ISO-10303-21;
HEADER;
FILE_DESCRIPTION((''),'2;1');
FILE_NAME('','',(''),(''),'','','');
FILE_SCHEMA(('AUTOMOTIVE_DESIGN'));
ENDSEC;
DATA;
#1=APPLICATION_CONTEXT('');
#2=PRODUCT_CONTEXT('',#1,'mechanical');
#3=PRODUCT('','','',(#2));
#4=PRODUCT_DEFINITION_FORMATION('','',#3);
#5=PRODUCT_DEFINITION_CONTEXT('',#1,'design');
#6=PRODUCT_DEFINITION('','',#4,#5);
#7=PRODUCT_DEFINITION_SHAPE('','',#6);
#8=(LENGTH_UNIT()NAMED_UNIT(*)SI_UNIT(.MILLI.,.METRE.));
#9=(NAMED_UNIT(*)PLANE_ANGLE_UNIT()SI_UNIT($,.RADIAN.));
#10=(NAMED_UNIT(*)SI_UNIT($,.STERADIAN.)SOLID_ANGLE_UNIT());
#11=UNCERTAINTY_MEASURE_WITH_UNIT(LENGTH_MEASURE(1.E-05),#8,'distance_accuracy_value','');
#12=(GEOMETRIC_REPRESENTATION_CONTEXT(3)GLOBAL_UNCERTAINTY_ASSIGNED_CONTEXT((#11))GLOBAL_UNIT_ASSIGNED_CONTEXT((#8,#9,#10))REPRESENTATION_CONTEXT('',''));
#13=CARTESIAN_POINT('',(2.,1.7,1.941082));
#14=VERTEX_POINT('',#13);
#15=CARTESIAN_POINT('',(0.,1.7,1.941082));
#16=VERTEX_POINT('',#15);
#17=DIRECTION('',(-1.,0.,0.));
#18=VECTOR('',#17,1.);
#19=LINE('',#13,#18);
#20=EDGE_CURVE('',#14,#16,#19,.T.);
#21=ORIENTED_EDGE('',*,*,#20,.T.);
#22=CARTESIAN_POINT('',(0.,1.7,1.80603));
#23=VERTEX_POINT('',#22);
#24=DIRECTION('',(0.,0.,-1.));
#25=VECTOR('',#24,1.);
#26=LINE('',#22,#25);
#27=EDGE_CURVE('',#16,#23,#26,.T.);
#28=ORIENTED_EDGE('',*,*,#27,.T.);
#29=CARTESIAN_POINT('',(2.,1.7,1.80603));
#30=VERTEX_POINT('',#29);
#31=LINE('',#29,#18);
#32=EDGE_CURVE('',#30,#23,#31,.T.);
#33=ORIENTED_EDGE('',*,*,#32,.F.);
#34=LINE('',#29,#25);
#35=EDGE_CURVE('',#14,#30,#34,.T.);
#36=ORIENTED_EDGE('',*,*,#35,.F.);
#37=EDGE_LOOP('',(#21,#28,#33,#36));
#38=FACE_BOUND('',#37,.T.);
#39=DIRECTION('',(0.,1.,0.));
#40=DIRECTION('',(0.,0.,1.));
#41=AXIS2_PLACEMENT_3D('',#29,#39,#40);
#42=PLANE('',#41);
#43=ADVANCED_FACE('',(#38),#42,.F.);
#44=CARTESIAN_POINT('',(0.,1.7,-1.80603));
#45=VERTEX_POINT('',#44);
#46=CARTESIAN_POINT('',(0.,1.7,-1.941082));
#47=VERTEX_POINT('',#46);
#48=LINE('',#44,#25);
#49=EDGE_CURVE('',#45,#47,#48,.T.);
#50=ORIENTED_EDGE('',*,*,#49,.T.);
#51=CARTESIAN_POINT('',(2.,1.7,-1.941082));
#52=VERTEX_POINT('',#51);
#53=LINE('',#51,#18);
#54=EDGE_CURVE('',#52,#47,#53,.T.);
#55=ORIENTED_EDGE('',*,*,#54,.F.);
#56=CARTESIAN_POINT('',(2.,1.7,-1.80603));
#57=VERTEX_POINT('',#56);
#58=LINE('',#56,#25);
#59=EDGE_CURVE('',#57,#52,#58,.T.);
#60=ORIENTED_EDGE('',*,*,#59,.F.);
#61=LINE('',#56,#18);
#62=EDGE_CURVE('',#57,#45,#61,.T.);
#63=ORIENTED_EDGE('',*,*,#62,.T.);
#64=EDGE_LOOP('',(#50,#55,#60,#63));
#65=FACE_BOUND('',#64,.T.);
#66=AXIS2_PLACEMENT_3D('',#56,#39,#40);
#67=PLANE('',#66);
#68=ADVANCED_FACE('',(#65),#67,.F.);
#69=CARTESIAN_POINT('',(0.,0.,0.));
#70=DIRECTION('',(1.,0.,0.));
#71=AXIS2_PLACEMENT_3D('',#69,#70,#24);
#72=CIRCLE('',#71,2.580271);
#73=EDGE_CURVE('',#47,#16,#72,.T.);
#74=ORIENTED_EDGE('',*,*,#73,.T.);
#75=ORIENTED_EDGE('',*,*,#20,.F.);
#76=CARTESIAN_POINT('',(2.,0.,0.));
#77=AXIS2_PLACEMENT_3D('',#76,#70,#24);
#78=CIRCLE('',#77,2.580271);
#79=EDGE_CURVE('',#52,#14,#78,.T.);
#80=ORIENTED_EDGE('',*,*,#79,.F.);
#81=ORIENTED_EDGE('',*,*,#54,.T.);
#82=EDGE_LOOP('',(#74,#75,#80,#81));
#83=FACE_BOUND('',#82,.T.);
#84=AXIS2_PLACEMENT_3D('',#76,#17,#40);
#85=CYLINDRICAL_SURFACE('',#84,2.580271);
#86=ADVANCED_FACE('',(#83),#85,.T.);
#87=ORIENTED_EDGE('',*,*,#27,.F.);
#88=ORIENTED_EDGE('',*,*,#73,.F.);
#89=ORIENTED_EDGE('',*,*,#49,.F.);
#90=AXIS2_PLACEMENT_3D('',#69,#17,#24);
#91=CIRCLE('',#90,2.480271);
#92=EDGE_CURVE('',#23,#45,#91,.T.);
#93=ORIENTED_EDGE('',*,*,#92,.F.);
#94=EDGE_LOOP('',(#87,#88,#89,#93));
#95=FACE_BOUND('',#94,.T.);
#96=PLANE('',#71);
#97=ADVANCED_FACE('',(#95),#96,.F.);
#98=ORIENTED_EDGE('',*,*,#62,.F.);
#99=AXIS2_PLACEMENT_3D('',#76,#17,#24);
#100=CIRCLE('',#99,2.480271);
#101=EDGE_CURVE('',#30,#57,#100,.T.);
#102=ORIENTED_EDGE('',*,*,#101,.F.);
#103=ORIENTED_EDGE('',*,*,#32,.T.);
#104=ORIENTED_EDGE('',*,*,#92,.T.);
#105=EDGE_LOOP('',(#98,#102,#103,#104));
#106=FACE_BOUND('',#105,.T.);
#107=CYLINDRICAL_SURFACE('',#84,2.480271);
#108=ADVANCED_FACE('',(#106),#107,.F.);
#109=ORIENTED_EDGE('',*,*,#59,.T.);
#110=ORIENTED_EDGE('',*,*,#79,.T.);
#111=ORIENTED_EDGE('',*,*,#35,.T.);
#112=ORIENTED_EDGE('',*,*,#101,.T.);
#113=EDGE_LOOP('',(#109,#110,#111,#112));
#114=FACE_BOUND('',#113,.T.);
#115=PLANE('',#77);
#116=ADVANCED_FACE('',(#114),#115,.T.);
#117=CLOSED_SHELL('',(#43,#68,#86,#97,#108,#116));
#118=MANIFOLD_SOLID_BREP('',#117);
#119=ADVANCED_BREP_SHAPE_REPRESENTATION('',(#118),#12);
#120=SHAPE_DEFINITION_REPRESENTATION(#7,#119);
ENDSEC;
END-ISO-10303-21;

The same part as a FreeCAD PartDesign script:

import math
import FreeCAD as App
import Part
import Sketcher

doc = App.newDocument("Part")
body = doc.addObject("PartDesign::Body", "Body")

sketch1 = doc.addObject("Sketcher::SketchObject", "Sketch")
body.addObject(sketch1)
sketch1.AttachmentSupport = (doc.YZ_Plane, [""])
sketch1.MapMode = "FlatFace"
sketch1.addGeometry([
    Part.LineSegment(App.Vector(1.7, 1.94, 0), App.Vector(1.7, 1.81, 0)),
    Part.ArcOfCircle(Part.Circle(App.Vector(0, 0, 0), App.Vector(0, 0, 1), 2.48), math.radians(-47), math.radians(47)),
    Part.LineSegment(App.Vector(1.7, -1.81, 0), App.Vector(1.7, -1.94, 0)),
    Part.ArcOfCircle(Part.Circle(App.Vector(0, 0, 0), App.Vector(0, 0, 1), 2.58), math.radians(-49), math.radians(49)),
], False)
sketch1.addConstraint([
    Sketcher.Constraint("Coincident", 0, 2, 1, 2),
    Sketcher.Constraint("Coincident", 1, 1, 2, 1),
    Sketcher.Constraint("Coincident", 2, 2, 3, 1),
    Sketcher.Constraint("Coincident", 3, 2, 0, 1),
    Sketcher.Constraint("Vertical", 0),
    Sketcher.Constraint("Vertical", 2),
    Sketcher.Constraint("Coincident", 1, 3, -1, 1),
    Sketcher.Constraint("Coincident", 3, 3, -1, 1),
    Sketcher.Constraint("Vertical", 0, 2, 1, 1),
    Sketcher.Constraint("DistanceX", -1, 1, 0, 2, 1.7),
    Sketcher.Constraint("Radius", 1, 2.480271),
    Sketcher.Constraint("Radius", 3, 2.580271),
])
pad1 = doc.addObject("PartDesign::Pad", "Pad")
body.addObject(pad1)
pad1.Profile = sketch1
pad1.Length = 2

doc.recompute()
